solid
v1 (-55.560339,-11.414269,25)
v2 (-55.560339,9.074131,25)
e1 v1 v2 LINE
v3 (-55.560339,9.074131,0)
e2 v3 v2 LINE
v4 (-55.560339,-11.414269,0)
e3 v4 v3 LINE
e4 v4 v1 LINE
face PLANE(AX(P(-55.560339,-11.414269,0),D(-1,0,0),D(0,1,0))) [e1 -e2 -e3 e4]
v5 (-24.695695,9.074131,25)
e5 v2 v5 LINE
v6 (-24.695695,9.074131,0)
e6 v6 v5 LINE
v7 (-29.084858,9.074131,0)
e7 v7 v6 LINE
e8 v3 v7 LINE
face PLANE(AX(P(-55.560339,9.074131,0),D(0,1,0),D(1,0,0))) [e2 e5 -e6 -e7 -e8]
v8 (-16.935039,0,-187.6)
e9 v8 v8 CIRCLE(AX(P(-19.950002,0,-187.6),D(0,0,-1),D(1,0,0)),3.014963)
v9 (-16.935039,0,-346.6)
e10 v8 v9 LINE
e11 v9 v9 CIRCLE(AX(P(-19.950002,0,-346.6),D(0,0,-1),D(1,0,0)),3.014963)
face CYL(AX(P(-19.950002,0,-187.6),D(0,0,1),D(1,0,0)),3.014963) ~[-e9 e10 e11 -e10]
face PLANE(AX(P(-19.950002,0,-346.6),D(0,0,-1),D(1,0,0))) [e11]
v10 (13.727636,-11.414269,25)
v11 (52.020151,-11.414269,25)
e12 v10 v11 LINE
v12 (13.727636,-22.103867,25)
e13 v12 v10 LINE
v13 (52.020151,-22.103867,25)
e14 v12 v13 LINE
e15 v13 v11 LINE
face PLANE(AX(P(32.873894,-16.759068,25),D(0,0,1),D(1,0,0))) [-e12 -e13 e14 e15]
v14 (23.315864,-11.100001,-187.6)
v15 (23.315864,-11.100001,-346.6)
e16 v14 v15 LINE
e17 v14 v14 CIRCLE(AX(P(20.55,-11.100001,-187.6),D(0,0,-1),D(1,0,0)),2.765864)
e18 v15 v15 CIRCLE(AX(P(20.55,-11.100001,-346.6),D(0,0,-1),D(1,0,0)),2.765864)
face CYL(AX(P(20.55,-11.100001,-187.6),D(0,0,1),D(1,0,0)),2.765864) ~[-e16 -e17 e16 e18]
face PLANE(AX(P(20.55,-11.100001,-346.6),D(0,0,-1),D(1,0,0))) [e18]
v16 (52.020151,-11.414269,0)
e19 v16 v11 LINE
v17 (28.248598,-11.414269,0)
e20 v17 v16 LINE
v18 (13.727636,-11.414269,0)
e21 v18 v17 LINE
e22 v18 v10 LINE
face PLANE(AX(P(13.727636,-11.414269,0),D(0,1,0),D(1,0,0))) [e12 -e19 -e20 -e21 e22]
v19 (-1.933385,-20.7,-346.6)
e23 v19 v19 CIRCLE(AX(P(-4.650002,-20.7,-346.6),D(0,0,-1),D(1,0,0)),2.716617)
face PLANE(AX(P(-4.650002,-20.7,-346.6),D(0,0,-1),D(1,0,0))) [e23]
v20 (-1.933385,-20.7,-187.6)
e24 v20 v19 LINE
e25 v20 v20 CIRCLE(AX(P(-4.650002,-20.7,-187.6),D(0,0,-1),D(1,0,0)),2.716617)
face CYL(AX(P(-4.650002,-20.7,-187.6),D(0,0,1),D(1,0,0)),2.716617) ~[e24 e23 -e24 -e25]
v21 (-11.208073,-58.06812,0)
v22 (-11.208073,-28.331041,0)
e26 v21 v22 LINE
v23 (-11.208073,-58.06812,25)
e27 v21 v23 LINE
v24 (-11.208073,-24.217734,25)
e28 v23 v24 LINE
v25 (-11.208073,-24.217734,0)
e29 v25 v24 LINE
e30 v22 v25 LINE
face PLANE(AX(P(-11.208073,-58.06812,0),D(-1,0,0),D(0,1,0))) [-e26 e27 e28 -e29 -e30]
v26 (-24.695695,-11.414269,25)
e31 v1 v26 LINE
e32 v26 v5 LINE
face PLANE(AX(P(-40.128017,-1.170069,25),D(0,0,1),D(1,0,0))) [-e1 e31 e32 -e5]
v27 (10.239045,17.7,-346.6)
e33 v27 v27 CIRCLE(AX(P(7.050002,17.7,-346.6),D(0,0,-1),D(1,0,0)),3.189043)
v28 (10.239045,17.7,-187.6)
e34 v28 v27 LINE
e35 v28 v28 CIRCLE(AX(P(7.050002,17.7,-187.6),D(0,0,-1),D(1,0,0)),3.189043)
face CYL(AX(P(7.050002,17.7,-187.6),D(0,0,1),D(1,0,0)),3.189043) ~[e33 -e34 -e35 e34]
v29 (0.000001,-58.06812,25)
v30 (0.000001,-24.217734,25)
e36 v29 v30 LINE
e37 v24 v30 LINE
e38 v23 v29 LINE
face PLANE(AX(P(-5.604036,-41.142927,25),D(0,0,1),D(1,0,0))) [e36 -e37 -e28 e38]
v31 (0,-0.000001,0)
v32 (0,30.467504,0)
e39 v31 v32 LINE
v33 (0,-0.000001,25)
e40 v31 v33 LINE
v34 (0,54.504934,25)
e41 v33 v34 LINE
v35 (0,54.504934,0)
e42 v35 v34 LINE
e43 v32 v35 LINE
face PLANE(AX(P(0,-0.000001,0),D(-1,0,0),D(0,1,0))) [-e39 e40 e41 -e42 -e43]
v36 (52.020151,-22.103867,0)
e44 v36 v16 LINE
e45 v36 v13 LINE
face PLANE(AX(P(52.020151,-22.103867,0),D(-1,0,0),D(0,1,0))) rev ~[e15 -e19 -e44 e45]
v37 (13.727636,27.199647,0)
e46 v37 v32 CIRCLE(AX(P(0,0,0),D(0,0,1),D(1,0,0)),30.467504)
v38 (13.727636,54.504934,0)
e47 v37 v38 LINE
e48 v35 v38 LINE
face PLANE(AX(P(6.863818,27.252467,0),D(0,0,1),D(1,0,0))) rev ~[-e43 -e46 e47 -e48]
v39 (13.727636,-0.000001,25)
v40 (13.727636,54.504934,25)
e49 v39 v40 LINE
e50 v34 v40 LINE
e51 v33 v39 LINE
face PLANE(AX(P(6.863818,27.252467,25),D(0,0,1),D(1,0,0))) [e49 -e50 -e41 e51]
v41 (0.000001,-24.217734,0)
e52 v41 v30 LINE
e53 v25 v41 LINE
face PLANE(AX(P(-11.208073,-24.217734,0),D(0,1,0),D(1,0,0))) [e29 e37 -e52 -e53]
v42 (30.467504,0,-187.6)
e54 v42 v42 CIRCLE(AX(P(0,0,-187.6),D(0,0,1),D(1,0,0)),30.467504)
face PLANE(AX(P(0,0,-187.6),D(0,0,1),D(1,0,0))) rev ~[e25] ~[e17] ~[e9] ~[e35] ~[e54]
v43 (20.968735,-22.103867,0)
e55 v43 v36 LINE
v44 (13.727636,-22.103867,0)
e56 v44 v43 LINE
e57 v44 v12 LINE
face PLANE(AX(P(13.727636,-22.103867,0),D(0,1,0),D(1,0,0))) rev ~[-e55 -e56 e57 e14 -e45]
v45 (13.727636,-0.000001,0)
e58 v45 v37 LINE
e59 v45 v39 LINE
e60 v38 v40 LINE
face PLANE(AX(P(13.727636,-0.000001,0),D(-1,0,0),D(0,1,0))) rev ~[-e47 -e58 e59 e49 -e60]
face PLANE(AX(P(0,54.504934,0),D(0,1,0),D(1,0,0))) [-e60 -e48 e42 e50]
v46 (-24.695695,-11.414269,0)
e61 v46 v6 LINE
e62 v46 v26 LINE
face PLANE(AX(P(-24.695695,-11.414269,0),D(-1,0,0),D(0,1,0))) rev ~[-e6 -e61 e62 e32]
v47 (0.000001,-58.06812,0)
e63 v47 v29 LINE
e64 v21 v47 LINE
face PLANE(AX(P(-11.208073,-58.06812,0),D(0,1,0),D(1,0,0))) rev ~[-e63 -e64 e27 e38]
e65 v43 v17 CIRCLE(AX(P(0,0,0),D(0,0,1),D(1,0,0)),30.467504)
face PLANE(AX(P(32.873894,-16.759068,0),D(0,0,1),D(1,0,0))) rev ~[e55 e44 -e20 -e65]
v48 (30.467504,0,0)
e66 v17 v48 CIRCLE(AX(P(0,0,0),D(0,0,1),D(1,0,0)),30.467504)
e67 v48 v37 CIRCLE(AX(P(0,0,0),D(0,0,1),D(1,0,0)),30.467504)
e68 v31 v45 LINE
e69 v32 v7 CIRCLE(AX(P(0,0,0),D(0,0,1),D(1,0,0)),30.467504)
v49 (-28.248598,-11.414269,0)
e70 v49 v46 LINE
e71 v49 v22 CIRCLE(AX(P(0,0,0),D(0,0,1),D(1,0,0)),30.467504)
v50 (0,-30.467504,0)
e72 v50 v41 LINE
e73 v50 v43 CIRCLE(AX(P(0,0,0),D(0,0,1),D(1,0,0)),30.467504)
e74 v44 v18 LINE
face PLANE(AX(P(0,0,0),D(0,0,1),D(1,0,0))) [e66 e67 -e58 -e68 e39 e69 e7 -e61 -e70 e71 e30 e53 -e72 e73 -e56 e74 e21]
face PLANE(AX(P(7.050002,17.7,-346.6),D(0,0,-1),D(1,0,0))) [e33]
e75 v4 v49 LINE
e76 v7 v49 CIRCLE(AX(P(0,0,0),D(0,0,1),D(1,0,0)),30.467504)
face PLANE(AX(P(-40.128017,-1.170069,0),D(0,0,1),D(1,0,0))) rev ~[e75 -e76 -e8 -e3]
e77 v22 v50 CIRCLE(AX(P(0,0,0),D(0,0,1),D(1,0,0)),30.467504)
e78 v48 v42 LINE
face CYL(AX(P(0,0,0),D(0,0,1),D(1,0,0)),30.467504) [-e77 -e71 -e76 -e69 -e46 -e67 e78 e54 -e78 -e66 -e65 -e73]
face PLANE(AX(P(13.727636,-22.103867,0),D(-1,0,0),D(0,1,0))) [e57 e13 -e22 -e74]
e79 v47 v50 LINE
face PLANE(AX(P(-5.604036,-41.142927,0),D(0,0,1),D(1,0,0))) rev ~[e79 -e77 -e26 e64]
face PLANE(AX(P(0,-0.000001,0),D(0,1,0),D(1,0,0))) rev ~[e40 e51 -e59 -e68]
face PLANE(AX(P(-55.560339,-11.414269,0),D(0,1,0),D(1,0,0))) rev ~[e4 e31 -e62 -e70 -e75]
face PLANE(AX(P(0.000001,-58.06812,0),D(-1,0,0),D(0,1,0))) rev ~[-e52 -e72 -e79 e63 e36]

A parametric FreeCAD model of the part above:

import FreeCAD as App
import Part
import Sketcher

V = App.Vector


def add_polygon(sketch, points):
    """Adds a closed chain of lines whose ends are joined by coincident constraints."""
    first, n = sketch.GeometryCount, len(points)
    for a, b in zip(points, points[1:] + points[:1]):
        sketch.addGeometry(Part.LineSegment(App.Vector(*a, 0), App.Vector(*b, 0)), False)
    for i in range(n):
        sketch.addConstraint(Sketcher.Constraint("Coincident", first + i, 2, first + (i + 1) % n, 1))

doc = App.newDocument("Part")
body = doc.addObject("PartDesign::Body", "Body")

# Sketch on XY plane
sketch1 = body.newObject("Sketcher::SketchObject", "Sketch")
sketch1.AttachmentSupport = (doc.getObject("XY_Plane"), [""])
sketch1.MapMode = "FlatFace"
sketch1.addGeometry(Part.Circle(V(0, 0, 0), V(0, 0, 1), 30), False)
sketch1.addConstraint([
    Sketcher.Constraint("Coincident", 0, 3, -1, 1),
    Sketcher.Constraint("Diameter", 0, 60.935008),
])
pad1 = body.newObject("PartDesign::Pad", "Pad")
pad1.Profile = sketch1
pad1.Length = 187.6
pad1.Reversed = True

# Sketch on XY plane
sketch2 = body.newObject("Sketcher::SketchObject", "Sketch001")
sketch2.AttachmentSupport = (doc.getObject("XY_Plane"), [""])
sketch2.MapMode = "FlatFace"
add_polygon(sketch2, [(0, 55), (0, 0), (14, 0), (14, 55)])  # lines 0-3
add_polygon(sketch2, [(-56, 9), (-56, -11), (-25, -11), (-25, 9)])  # lines 4-7
add_polygon(sketch2, [(14, -11), (14, -22), (52, -22), (52, -11)])  # lines 8-11
add_polygon(sketch2, [(-11, -24), (-11, -58), (0, -58), (0, -24)])  # lines 12-15
sketch2.addConstraint([
    Sketcher.Constraint("Vertical", 0),
    Sketcher.Constraint("Horizontal", 1),
    Sketcher.Constraint("Vertical", 2),
    Sketcher.Constraint("Horizontal", 3),
    Sketcher.Constraint("Vertical", 4),
    Sketcher.Constraint("Horizontal", 5),
    Sketcher.Constraint("Vertical", 6),
    Sketcher.Constraint("Horizontal", 7),
    Sketcher.Constraint("Vertical", 8),
    Sketcher.Constraint("Horizontal", 9),
    Sketcher.Constraint("Vertical", 10),
    Sketcher.Constraint("Horizontal", 11),
    Sketcher.Constraint("Vertical", 12),
    Sketcher.Constraint("Horizontal", 13),
    Sketcher.Constraint("Vertical", 14),
    Sketcher.Constraint("Horizontal", 15),
    Sketcher.Constraint("Coincident", 0, 2, -1, 1),
    Sketcher.Constraint("PointOnObject", 13, 2, -2),
    Sketcher.Constraint("Horizontal", 5, 2, 10, 2),
    Sketcher.Constraint("Vertical", 2, 2, 8, 2),
    Sketcher.Constraint("DistanceY", 4, 2, 4, 1, 20.4884),
    Sketcher.Constraint("DistanceY", 8, 2, 8, 1, 10.689599),
    Sketcher.Constraint("DistanceX", 1, 1, 1, 2, 13.727636),
    Sketcher.Constraint("DistanceX", 5, 1, 5, 2, 30.864643),
    Sketcher.Constraint("DistanceX", 9, 1, 9, 2, 38.292515),
    Sketcher.Constraint("DistanceX", 13, 1, 13, 2, 11.208073),
    Sketcher.Constraint("DistanceY", 0, 2, 0, 1, 54.504935),
    Sketcher.Constraint("DistanceY", 12, 2, 12, 1, 33.850385),
    Sketcher.Constraint("DistanceX", 4, 2, -1, 1, 55.560339),
    Sketcher.Constraint("DistanceY", 4, 2, -1, 1, 11.414269),
    Sketcher.Constraint("DistanceY", 12, 2, -1, 1, 58.06812),
])
pad2 = body.newObject("PartDesign::Pad", "Pad001")
pad2.Profile = sketch2
pad2.Length = 25

# Sketch on XY plane
sketch3 = body.newObject("Sketcher::SketchObject", "Sketch002")
sketch3.AttachmentSupport = (doc.getObject("XY_Plane"), [""])
sketch3.MapMode = "FlatFace"
sketch3.AttachmentOffset = App.Placement(V(0, 0, -187.6), App.Rotation())
sketch3.addGeometry([
    Part.Circle(V(-4.7, -20.7, 0), V(0, 0, 1), 2.7),
    Part.Circle(V(20.6, -11.1, 0), V(0, 0, 1), 2.8),
    Part.Circle(V(7.1, 17.7, 0), V(0, 0, 1), 3.2),
    Part.Circle(V(-20, 0, 0), V(0, 0, 1), 3),
], False)
sketch3.addConstraint([
    Sketcher.Constraint("PointOnObject", 3, 3, -1),
    Sketcher.Constraint("DistanceY", 0, 3, -1, 1, 20.7),
    Sketcher.Constraint("DistanceY", 1, 3, -1, 1, 11.100001),
    Sketcher.Constraint("DistanceY", -1, 1, 2, 3, 17.7),
    Sketcher.Constraint("DistanceX", 2, 3, 1, 3, 13.499998),
    Sketcher.Constraint("DistanceX", 3, 3, 0, 3, 15.3),
    Sketcher.Constraint("Diameter", 1, 5.531728),
    Sketcher.Constraint("DistanceX", 0, 3, -1, 1, 4.650002),
    Sketcher.Constraint("DistanceX", -1, 1, 1, 3, 20.55),
    Sketcher.Constraint("Diameter", 0, 5.433234),
    Sketcher.Constraint("Diameter", 2, 6.378086),
    Sketcher.Constraint("Diameter", 3, 6.029926),
])
pad3 = body.newObject("PartDesign::Pad", "Pad002")
pad3.Profile = sketch3
pad3.Length = 159
pad3.Reversed = True

doc.recompute()
